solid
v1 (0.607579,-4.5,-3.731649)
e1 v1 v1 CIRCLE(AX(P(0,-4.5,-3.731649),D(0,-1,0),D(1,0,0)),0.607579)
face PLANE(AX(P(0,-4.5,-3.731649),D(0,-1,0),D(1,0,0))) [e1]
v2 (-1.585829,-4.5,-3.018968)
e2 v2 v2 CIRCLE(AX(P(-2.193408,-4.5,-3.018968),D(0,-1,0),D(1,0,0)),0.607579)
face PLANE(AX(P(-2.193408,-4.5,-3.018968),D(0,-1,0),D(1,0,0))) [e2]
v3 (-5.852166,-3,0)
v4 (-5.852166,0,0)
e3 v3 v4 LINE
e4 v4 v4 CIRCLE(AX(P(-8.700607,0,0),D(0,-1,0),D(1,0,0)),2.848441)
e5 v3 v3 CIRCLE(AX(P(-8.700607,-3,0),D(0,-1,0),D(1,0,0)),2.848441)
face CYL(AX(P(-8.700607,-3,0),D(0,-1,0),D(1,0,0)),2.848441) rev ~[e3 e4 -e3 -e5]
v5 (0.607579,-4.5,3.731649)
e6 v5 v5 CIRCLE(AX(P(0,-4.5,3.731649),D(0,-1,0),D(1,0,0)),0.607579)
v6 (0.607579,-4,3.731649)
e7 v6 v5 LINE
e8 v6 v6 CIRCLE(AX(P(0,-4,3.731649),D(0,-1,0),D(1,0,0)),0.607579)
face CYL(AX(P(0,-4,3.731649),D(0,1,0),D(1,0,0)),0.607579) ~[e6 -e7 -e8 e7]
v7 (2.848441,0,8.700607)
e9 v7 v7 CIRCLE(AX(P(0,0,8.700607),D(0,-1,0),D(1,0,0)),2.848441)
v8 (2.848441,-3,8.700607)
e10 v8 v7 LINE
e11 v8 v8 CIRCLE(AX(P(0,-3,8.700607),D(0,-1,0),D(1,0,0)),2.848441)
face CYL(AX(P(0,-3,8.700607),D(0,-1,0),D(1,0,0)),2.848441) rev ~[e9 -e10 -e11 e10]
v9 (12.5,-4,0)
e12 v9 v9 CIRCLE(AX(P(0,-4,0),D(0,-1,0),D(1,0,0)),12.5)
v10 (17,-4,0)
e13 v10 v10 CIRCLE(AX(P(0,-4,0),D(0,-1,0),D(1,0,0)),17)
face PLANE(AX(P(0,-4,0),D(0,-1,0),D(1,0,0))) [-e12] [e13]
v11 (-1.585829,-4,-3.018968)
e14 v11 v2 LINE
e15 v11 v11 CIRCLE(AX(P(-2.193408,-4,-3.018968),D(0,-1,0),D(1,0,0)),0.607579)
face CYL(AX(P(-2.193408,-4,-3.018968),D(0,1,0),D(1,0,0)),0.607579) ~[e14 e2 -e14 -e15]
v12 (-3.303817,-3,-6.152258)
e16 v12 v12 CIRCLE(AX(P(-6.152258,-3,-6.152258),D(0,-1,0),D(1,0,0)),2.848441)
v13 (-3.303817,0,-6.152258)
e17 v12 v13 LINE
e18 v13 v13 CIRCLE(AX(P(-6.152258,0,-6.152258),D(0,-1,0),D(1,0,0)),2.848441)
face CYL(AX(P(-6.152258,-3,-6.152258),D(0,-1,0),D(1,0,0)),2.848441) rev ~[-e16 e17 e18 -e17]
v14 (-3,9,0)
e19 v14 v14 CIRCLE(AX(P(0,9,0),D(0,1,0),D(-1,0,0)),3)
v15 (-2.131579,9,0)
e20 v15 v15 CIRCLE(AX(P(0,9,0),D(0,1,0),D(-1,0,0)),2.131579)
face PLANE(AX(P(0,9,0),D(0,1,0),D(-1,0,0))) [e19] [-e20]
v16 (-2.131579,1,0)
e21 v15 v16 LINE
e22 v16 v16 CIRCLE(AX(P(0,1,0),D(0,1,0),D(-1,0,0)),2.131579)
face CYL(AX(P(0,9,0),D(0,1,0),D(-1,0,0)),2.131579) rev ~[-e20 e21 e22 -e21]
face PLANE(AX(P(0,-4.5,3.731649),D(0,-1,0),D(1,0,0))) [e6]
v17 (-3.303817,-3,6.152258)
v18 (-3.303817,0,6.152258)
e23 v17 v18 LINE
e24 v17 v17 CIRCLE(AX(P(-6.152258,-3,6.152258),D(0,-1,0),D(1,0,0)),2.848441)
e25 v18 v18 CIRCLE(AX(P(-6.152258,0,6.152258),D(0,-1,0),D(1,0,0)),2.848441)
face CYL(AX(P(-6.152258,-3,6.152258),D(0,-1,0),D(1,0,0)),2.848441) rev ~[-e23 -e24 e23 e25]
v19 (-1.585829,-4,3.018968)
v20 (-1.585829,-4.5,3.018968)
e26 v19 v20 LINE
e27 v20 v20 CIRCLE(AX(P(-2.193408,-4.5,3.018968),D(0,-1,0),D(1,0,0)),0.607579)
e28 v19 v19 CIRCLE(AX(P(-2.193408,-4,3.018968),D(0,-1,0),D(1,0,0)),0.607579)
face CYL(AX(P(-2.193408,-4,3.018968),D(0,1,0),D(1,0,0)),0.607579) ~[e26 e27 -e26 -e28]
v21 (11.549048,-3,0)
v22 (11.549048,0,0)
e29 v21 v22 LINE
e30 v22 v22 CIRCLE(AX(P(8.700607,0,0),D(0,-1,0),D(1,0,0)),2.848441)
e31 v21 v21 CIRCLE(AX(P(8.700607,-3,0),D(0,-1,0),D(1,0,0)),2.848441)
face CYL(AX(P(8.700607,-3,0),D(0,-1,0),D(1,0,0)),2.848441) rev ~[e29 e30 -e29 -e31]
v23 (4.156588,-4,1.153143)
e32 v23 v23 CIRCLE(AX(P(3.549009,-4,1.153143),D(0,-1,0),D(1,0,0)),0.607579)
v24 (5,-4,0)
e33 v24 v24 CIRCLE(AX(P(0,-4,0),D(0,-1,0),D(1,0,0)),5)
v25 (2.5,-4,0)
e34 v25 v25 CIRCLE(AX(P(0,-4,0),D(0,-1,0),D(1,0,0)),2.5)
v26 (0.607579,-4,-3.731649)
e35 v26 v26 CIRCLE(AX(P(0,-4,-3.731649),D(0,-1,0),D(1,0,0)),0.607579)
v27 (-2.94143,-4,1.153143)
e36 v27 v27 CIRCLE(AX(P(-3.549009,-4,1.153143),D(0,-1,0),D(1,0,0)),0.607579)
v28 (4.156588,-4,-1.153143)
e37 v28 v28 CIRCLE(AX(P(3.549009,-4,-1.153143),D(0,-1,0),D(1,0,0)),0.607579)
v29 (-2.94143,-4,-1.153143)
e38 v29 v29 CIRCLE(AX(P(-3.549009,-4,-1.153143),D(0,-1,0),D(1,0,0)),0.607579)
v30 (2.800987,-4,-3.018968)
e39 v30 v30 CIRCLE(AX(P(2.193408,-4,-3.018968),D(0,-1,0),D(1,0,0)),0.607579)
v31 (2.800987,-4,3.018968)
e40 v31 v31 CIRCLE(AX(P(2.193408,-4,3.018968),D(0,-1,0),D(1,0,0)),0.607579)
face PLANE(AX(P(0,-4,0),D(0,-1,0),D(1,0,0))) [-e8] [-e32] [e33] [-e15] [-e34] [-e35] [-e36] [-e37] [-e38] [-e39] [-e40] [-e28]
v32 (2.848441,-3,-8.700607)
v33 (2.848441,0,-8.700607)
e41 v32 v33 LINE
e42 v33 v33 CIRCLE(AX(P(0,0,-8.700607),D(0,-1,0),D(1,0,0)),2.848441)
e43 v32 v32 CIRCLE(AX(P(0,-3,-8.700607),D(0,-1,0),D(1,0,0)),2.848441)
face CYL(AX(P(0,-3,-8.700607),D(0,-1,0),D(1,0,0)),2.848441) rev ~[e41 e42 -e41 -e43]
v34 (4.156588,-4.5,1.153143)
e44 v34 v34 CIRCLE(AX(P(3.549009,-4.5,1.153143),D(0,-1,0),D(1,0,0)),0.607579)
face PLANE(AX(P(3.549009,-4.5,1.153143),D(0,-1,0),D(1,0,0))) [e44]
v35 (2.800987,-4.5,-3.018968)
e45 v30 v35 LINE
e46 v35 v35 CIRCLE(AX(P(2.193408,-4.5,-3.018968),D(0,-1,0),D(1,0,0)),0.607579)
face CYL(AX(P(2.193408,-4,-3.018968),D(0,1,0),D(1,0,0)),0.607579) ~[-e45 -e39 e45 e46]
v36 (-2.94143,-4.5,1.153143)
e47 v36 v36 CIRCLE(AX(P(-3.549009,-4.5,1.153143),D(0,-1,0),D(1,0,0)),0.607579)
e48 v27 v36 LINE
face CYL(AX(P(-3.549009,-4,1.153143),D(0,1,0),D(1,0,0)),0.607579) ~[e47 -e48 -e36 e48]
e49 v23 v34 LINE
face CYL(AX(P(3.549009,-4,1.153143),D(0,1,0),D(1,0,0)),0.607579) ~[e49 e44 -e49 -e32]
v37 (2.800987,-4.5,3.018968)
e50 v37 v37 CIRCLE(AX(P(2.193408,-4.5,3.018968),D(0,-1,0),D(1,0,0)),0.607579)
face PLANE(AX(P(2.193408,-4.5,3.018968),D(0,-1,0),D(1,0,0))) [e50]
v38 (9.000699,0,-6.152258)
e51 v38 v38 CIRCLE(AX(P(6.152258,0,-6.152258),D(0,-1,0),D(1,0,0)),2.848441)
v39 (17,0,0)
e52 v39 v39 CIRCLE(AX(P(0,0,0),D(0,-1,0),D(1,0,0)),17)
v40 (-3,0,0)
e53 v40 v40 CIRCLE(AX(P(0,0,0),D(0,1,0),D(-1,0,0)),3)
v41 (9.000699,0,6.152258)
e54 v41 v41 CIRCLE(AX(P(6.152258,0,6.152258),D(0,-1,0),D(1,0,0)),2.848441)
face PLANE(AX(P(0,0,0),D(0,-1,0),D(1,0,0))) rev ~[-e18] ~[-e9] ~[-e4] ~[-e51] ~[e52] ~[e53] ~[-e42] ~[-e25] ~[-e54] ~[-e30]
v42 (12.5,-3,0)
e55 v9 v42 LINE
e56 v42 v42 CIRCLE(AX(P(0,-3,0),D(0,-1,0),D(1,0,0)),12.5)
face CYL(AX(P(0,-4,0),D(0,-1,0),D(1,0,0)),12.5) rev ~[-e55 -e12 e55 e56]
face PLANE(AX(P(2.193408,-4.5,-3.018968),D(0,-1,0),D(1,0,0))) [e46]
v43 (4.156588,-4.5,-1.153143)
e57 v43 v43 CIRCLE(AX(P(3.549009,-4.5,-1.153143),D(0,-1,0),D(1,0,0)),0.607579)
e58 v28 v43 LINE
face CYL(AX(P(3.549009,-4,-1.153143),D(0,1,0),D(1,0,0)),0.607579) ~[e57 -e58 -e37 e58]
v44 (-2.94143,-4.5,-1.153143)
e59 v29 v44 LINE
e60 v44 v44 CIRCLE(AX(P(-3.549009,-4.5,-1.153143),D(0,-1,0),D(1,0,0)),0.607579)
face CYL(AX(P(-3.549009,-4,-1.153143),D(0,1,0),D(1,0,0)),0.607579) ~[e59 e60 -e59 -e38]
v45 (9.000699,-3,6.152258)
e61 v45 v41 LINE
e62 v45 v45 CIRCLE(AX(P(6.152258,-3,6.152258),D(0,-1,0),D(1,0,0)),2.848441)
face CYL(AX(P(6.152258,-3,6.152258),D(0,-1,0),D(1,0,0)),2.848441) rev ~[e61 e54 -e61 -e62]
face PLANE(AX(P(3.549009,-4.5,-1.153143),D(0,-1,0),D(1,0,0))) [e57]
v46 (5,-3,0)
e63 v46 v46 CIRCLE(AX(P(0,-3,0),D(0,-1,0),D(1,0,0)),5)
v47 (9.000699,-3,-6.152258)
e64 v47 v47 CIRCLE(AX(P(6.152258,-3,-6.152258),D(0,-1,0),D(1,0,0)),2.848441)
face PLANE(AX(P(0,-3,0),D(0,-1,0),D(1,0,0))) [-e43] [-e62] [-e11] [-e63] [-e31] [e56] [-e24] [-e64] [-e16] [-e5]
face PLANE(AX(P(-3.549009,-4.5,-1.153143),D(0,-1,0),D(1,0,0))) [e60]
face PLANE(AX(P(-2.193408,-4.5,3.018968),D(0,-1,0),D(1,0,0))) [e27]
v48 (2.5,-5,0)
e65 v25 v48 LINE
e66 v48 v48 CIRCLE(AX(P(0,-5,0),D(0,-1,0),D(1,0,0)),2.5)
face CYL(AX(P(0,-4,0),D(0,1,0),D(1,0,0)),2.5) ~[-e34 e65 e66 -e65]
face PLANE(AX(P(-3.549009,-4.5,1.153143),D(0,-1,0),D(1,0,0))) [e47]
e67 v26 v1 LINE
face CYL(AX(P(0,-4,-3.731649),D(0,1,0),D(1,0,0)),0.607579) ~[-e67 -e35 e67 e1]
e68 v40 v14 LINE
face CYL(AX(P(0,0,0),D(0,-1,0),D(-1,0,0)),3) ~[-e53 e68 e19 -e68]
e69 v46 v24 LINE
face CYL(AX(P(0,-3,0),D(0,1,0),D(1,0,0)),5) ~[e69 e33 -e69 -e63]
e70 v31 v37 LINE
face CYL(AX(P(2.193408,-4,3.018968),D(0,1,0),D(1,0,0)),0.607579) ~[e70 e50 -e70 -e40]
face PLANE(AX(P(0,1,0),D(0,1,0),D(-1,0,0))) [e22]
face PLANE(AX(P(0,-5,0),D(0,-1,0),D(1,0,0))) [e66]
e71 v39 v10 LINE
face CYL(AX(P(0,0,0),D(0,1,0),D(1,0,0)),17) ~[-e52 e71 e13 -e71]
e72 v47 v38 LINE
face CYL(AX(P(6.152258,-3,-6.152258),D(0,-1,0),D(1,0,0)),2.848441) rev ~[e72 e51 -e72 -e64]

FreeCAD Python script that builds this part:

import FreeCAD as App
import Part
import Sketcher
from FreeCAD import Vector
Q = App.Units.Quantity

doc = App.newDocument("Part")
params = doc.addObject("Spreadsheet::Sheet", "Params")
for row, (alias, value) in enumerate([
    ("sketch1_diameter", "34 mm"),
    ("pad1_length", "4 mm"),
    ("sketch2_diameter", "25 mm"),
    ("pocket1_length", "1 mm"),
    ("sketch3_diameter", "10 mm"),
    ("pad2_length", "1 mm"),
    ("sketch4_diameter", "5 mm"),
    ("pad3_length", "1 mm"),
    ("pocket2_length", "5 mm"),
    ("pad4_length", "0.5 mm"),
    ("sketch7_diameter", "6 mm"),
    ("pad5_length", "9 mm"),
    ("pocket3_length", "8 mm"),
], start=1):
    params.set(f"A{row}", alias)
    params.set(f"B{row}", "=" + value)
    params.setAlias(f"B{row}", alias)

body = doc.addObject("PartDesign::Body", "Body")

# Sketch on XZ plane
sketch1 = body.newObject("Sketcher::SketchObject", "Sketch")
sketch1.AttachmentSupport = (doc.getObject("XZ_Plane"), [""])
sketch1.MapMode = "FlatFace"
sketch1.addGeometry(Part.Circle(Vector(0, 0, 0), Vector(0, 0, 1), 17), False)
sketch1.addConstraint(Sketcher.Constraint("Coincident", 0, 3, -1, 1))
sketch1.addConstraint(Sketcher.Constraint("Diameter", 0, Q("34 mm")))
sketch1.setExpression("Constraints[1]", "Params.sketch1_diameter")
pad1 = body.newObject("PartDesign::Pad", "Pad")
pad1.Profile = sketch1
pad1.setExpression("Length", "Params.pad1_length")

# Sketch on XZ plane
sketch2 = body.newObject("Sketcher::SketchObject", "Sketch001")
sketch2.AttachmentSupport = (doc.getObject("XZ_Plane"), [""])
sketch2.MapMode = "FlatFace"
sketch2.AttachmentOffset = App.Placement(Vector(0, 0, 4), App.Rotation())
sketch2.addGeometry(Part.Circle(Vector(0, 0, 0), Vector(0, 0, 1), 12.5), False)
sketch2.addConstraint(Sketcher.Constraint("Coincident", 0, 3, -1, 1))
sketch2.addConstraint(Sketcher.Constraint("Diameter", 0, Q("25 mm")))
sketch2.setExpression("Constraints[1]", "Params.sketch2_diameter")
pocket1 = body.newObject("PartDesign::Pocket", "Pocket")
pocket1.Profile = sketch2
pocket1.setExpression("Length", "Params.pocket1_length")

# Sketch on XZ plane
sketch3 = body.newObject("Sketcher::SketchObject", "Sketch002")
sketch3.AttachmentSupport = (doc.getObject("XZ_Plane"), [""])
sketch3.MapMode = "FlatFace"
sketch3.AttachmentOffset = App.Placement(Vector(0, 0, 3), App.Rotation())
sketch3.addGeometry(Part.Circle(Vector(0, 0, 0), Vector(0, 0, 1), 5), False)
sketch3.addConstraint(Sketcher.Constraint("Coincident", 0, 3, -1, 1))
sketch3.addConstraint(Sketcher.Constraint("Diameter", 0, Q("10 mm")))
sketch3.setExpression("Constraints[1]", "Params.sketch3_diameter")
pad2 = body.newObject("PartDesign::Pad", "Pad001")
pad2.Profile = sketch3
pad2.setExpression("Length", "Params.pad2_length")

# Sketch on XZ plane
sketch4 = body.newObject("Sketcher::SketchObject", "Sketch003")
sketch4.AttachmentSupport = (doc.getObject("XZ_Plane"), [""])
sketch4.MapMode = "FlatFace"
sketch4.AttachmentOffset = App.Placement(Vector(0, 0, 4), App.Rotation())
sketch4.addGeometry(Part.Circle(Vector(0, 0, 0), Vector(0, 0, 1), 2.5), False)
sketch4.addConstraint(Sketcher.Constraint("Coincident", 0, 3, -1, 1))
sketch4.addConstraint(Sketcher.Constraint("Diameter", 0, Q("5 mm")))
sketch4.setExpression("Constraints[1]", "Params.sketch4_diameter")
pad3 = body.newObject("PartDesign::Pad", "Pad002")
pad3.Profile = sketch4
pad3.setExpression("Length", "Params.pad3_length")

# Sketch on XZ plane
sketch5 = body.newObject("Sketcher::SketchObject", "Sketch004")
sketch5.AttachmentSupport = (doc.getObject("XZ_Plane"), [""])
sketch5.MapMode = "FlatFace"
sketch5.AttachmentOffset = App.Placement(Vector(0, 0, 3), App.Rotation())
sketch5.addGeometry(Part.Circle(Vector(-6.152258, 6.152258, 0), Vector(0, 0, 1), 2.848441), False)
sketch5.addGeometry(Part.Circle(Vector(-8.700607, 0, 0), Vector(0, 0, 1), 2.848441), False)
sketch5.addGeometry(Part.Circle(Vector(-6.152258, -6.152258, 0), Vector(0, 0, 1), 2.848441), False)
sketch5.addGeometry(Part.Circle(Vector(0, -8.700607, 0), Vector(0, 0, 1), 2.848441), False)
sketch5.addGeometry(Part.Circle(Vector(6.152258, -6.152258, 0), Vector(0, 0, 1), 2.848441), False)
sketch5.addGeometry(Part.Circle(Vector(8.700607, 0, 0), Vector(0, 0, 1), 2.848441), False)
sketch5.addGeometry(Part.Circle(Vector(6.152258, 6.152258, 0), Vector(0, 0, 1), 2.848441), False)
sketch5.addGeometry(Part.Circle(Vector(0, 8.700607, 0), Vector(0, 0, 1), 2.848441), False)
sketch5.addConstraint(Sketcher.Constraint("Equal", 0, 1))
sketch5.addConstraint(Sketcher.Constraint("Equal", 1, 2))
sketch5.addConstraint(Sketcher.Constraint("Equal", 2, 3))
sketch5.addConstraint(Sketcher.Constraint("Equal", 3, 4))
sketch5.addConstraint(Sketcher.Constraint("Equal", 4, 5))
sketch5.addConstraint(Sketcher.Constraint("Equal", 5, 6))
sketch5.addConstraint(Sketcher.Constraint("Equal", 6, 7))
sketch5.addConstraint(Sketcher.Constraint("Symmetric", 0, 3, 4, 3, -1, 1))
sketch5.addConstraint(Sketcher.Constraint("Symmetric", 1, 3, 5, 3, -1, 1))
sketch5.addConstraint(Sketcher.Constraint("Symmetric", 2, 3, 6, 3, -1, 1))
sketch5.addConstraint(Sketcher.Constraint("Symmetric", 3, 3, 7, 3, -1, 1))
sketch5.addConstraint(Sketcher.Constraint("Symmetric", 2, 3, 4, 3, -2))
sketch5.addConstraint(Sketcher.Constraint("PointOnObject", 1, 3, -1))
sketch5.addConstraint(Sketcher.Constraint("PointOnObject", 3, 3, -2))
sketch5.addConstraint(Sketcher.Constraint("Diameter", 0, Q("5.696882 mm")))
sketch5.addConstraint(Sketcher.Constraint("DistanceX", 1, 3, 0, 3, Q("2.548349 mm")))
sketch5.addConstraint(Sketcher.Constraint("DistanceY", 3, 3, 2, 3, Q("2.548349 mm")))
sketch5.addConstraint(Sketcher.Constraint("DistanceX", 0, 3, -1, 1, Q("6.152258 mm")))
sketch5.addConstraint(Sketcher.Constraint("DistanceY", -1, 1, 0, 3, Q("6.152258 mm")))
pocket2 = body.newObject("PartDesign::Pocket", "Pocket001")
pocket2.Profile = sketch5
pocket2.setExpression("Length", "Params.pocket2_length")

# Sketch on XZ plane
sketch6 = body.newObject("Sketcher::SketchObject", "Sketch005")
sketch6.AttachmentSupport = (doc.getObject("XZ_Plane"), [""])
sketch6.MapMode = "FlatFace"
sketch6.AttachmentOffset = App.Placement(Vector(0, 0, 4), App.Rotation())
sketch6.addGeometry(Part.Circle(Vector(0, 3.731649, 0), Vector(0, 0, 1), 0.607579), False)
sketch6.addGeometry(Part.Circle(Vector(-2.193408, 3.018968, 0), Vector(0, 0, 1), 0.607579), False)
sketch6.addGeometry(Part.Circle(Vector(-3.549009, 1.153143, 0), Vector(0, 0, 1), 0.607579), False)
sketch6.addGeometry(Part.Circle(Vector(-3.549009, -1.153143, 0), Vector(0, 0, 1), 0.607579), False)
sketch6.addGeometry(Part.Circle(Vector(-2.193408, -3.018968, 0), Vector(0, 0, 1), 0.607579), False)
sketch6.addGeometry(Part.Circle(Vector(0, -3.731649, 0), Vector(0, 0, 1), 0.607579), False)
sketch6.addGeometry(Part.Circle(Vector(2.193408, -3.018968, 0), Vector(0, 0, 1), 0.607579), False)
sketch6.addGeometry(Part.Circle(Vector(3.549009, -1.153143, 0), Vector(0, 0, 1), 0.607579), False)
sketch6.addGeometry(Part.Circle(Vector(3.549009, 1.153143, 0), Vector(0, 0, 1), 0.607579), False)
sketch6.addGeometry(Part.Circle(Vector(2.193408, 3.018968, 0), Vector(0, 0, 1), 0.607579), False)
sketch6.addConstraint(Sketcher.Constraint("Equal", 0, 1))
sketch6.addConstraint(Sketcher.Constraint("Equal", 1, 2))
sketch6.addConstraint(Sketcher.Constraint("Equal", 2, 3))
sketch6.addConstraint(Sketcher.Constraint("Equal", 3, 4))
sketch6.addConstraint(Sketcher.Constraint("Equal", 4, 5))
sketch6.addConstraint(Sketcher.Constraint("Equal", 5, 6))
sketch6.addConstraint(Sketcher.Constraint("Equal", 6, 7))
sketch6.addConstraint(Sketcher.Constraint("Equal", 7, 8))
sketch6.addConstraint(Sketcher.Constraint("Equal", 8, 9))
sketch6.addConstraint(Sketcher.Constraint("Symmetric", 0, 3, 5, 3, -1, 1))
sketch6.addConstraint(Sketcher.Constraint("Symmetric", 1, 3, 6, 3, -1, 1))
sketch6.addConstraint(Sketcher.Constraint("Symmetric", 2, 3, 7, 3, -1, 1))
sketch6.addConstraint(Sketcher.Constraint("Symmetric", 3, 3, 8, 3, -1, 1))
sketch6.addConstraint(Sketcher.Constraint("Symmetric", 4, 3, 9, 3, -1, 1))
sketch6.addConstraint(Sketcher.Constraint("Symmetric", 4, 3, 6, 3, -2))
sketch6.addConstraint(Sketcher.Constraint("Symmetric", 3, 3, 7, 3, -2))
sketch6.addConstraint(Sketcher.Constraint("PointOnObject", 0, 3, -2))
sketch6.addConstraint(Sketcher.Constraint("Diameter", 0, Q("1.215158 mm")))
sketch6.addConstraint(Sketcher.Constraint("DistanceX", 2, 3, 1, 3, Q("1.355601 mm")))
sketch6.addConstraint(Sketcher.Constraint("DistanceY", -1, 1, 0, 3, Q("3.731649 mm")))
sketch6.addConstraint(Sketcher.Constraint("DistanceY", -1, 1, 1, 3, Q("3.018968 mm")))
sketch6.addConstraint(Sketcher.Constraint("DistanceX", 2, 3, -1, 1, Q("3.549009 mm")))
sketch6.addConstraint(Sketcher.Constraint("DistanceY", 3, 3, 1, 3, Q("4.172111 mm")))
pad4 = body.newObject("PartDesign::Pad", "Pad003")
pad4.Profile = sketch6
pad4.setExpression("Length", "Params.pad4_length")

# Sketch on XZ plane
sketch7 = body.newObject("Sketcher::SketchObject", "Sketch006")
sketch7.AttachmentSupport = (doc.getObject("XZ_Plane"), [""])
sketch7.MapMode = "FlatFace"
sketch7.addGeometry(Part.Circle(Vector(0, 0, 0), Vector(0, 0, 1), 3), False)
sketch7.addConstraint(Sketcher.Constraint("Coincident", 0, 3, -1, 1))
sketch7.addConstraint(Sketcher.Constraint("Diameter", 0, Q("6 mm")))
sketch7.setExpression("Constraints[1]", "Params.sketch7_diameter")
pad5 = body.newObject("PartDesign::Pad", "Pad004")
pad5.Profile = sketch7
pad5.setExpression("Length", "Params.pad5_length")
pad5.Reversed = True

# Sketch on XZ plane
sketch8 = body.newObject("Sketcher::SketchObject", "Sketch007")
sketch8.AttachmentSupport = (doc.getObject("XZ_Plane"), [""])
sketch8.MapMode = "FlatFace"
sketch8.AttachmentOffset = App.Placement(Vector(0, 0, -9), App.Rotation())
sketch8.addGeometry(Part.Circle(Vector(0, 0, 0), Vector(0, 0, 1), 2.131579), False)
sketch8.addConstraint(Sketcher.Constraint("Coincident", 0, 3, -1, 1))
sketch8.addConstraint(Sketcher.Constraint("Diameter", 0, Q("4.263158 mm")))
pocket3 = body.newObject("PartDesign::Pocket", "Pocket002")
pocket3.Profile = sketch8
pocket3.setExpression("Length", "Params.pocket3_length")
pocket3.Reversed = True

doc.recompute()
